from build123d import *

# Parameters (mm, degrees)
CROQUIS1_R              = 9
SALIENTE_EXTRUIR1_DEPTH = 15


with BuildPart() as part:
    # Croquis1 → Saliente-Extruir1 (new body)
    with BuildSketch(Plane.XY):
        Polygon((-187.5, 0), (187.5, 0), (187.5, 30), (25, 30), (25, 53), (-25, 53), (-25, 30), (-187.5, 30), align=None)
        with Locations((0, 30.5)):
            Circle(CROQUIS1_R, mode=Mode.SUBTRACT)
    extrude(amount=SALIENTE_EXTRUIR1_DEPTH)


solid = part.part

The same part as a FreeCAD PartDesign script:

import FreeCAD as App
import Part
import Sketcher

V = App.Vector


def add_polygon(sketch, points):
    """Adds a closed chain of lines whose ends are joined by coincident constraints."""
    first, n = sketch.GeometryCount, len(points)
    for a, b in zip(points, points[1:] + points[:1]):
        sketch.addGeometry(Part.LineSegment(App.Vector(*a, 0), App.Vector(*b, 0)), False)
    for i in range(n):
        sketch.addConstraint(Sketcher.Constraint("Coincident", first + i, 2, first + (i + 1) % n, 1))

doc = App.newDocument("Part")
body = doc.addObject("PartDesign::Body", "Body")

# Sketch on XY plane
sketch1 = body.newObject("Sketcher::SketchObject", "Sketch")
sketch1.AttachmentSupport = (doc.getObject("XY_Plane"), [""])
sketch1.MapMode = "FlatFace"
add_polygon(sketch1, [(-188, 0), (188, 0), (188, 30), (25, 30), (25, 53), (-25, 53), (-25, 30), (-188, 30)])  # lines 0-7
sketch1.addGeometry(Part.Circle(V(0, 30, 0), V(0, 0, 1), 9), False)  # 8
sketch1.addConstraint([
    Sketcher.Constraint("Horizontal", 0),
    Sketcher.Constraint("Vertical", 1),
    Sketcher.Constraint("Horizontal", 2),
    Sketcher.Constraint("Vertical", 3),
    Sketcher.Constraint("Horizontal", 4),
    Sketcher.Constraint("Vertical", 5),
    Sketcher.Constraint("Horizontal", 6),
    Sketcher.Constraint("Vertical", 7),
    Sketcher.Constraint("Symmetric", 0, 2, 7, 2, -1, 1),
    Sketcher.Constraint("Symmetric", 2, 2, 5, 2, -2),
    Sketcher.Constraint("PointOnObject", 8, 3, -2),
    Sketcher.Constraint("Diameter", 8, 18.0),
    Sketcher.Constraint("DistanceX", 0, 1, 0, 2, 375.0),
    Sketcher.Constraint("DistanceX", 4, 2, 4, 1, 50.0),
    Sketcher.Constraint("DistanceY", 1, 1, 1, 2, 30.0),
    Sketcher.Constraint("DistanceY", 3, 1, 3, 2, 23.0),
    Sketcher.Constraint("DistanceY", -1, 1, 8, 3, 30.5),
])
pad1 = body.newObject("PartDesign::Pad", "Pad")
pad1.Profile = sketch1
pad1.Length = 15

doc.recompute()
